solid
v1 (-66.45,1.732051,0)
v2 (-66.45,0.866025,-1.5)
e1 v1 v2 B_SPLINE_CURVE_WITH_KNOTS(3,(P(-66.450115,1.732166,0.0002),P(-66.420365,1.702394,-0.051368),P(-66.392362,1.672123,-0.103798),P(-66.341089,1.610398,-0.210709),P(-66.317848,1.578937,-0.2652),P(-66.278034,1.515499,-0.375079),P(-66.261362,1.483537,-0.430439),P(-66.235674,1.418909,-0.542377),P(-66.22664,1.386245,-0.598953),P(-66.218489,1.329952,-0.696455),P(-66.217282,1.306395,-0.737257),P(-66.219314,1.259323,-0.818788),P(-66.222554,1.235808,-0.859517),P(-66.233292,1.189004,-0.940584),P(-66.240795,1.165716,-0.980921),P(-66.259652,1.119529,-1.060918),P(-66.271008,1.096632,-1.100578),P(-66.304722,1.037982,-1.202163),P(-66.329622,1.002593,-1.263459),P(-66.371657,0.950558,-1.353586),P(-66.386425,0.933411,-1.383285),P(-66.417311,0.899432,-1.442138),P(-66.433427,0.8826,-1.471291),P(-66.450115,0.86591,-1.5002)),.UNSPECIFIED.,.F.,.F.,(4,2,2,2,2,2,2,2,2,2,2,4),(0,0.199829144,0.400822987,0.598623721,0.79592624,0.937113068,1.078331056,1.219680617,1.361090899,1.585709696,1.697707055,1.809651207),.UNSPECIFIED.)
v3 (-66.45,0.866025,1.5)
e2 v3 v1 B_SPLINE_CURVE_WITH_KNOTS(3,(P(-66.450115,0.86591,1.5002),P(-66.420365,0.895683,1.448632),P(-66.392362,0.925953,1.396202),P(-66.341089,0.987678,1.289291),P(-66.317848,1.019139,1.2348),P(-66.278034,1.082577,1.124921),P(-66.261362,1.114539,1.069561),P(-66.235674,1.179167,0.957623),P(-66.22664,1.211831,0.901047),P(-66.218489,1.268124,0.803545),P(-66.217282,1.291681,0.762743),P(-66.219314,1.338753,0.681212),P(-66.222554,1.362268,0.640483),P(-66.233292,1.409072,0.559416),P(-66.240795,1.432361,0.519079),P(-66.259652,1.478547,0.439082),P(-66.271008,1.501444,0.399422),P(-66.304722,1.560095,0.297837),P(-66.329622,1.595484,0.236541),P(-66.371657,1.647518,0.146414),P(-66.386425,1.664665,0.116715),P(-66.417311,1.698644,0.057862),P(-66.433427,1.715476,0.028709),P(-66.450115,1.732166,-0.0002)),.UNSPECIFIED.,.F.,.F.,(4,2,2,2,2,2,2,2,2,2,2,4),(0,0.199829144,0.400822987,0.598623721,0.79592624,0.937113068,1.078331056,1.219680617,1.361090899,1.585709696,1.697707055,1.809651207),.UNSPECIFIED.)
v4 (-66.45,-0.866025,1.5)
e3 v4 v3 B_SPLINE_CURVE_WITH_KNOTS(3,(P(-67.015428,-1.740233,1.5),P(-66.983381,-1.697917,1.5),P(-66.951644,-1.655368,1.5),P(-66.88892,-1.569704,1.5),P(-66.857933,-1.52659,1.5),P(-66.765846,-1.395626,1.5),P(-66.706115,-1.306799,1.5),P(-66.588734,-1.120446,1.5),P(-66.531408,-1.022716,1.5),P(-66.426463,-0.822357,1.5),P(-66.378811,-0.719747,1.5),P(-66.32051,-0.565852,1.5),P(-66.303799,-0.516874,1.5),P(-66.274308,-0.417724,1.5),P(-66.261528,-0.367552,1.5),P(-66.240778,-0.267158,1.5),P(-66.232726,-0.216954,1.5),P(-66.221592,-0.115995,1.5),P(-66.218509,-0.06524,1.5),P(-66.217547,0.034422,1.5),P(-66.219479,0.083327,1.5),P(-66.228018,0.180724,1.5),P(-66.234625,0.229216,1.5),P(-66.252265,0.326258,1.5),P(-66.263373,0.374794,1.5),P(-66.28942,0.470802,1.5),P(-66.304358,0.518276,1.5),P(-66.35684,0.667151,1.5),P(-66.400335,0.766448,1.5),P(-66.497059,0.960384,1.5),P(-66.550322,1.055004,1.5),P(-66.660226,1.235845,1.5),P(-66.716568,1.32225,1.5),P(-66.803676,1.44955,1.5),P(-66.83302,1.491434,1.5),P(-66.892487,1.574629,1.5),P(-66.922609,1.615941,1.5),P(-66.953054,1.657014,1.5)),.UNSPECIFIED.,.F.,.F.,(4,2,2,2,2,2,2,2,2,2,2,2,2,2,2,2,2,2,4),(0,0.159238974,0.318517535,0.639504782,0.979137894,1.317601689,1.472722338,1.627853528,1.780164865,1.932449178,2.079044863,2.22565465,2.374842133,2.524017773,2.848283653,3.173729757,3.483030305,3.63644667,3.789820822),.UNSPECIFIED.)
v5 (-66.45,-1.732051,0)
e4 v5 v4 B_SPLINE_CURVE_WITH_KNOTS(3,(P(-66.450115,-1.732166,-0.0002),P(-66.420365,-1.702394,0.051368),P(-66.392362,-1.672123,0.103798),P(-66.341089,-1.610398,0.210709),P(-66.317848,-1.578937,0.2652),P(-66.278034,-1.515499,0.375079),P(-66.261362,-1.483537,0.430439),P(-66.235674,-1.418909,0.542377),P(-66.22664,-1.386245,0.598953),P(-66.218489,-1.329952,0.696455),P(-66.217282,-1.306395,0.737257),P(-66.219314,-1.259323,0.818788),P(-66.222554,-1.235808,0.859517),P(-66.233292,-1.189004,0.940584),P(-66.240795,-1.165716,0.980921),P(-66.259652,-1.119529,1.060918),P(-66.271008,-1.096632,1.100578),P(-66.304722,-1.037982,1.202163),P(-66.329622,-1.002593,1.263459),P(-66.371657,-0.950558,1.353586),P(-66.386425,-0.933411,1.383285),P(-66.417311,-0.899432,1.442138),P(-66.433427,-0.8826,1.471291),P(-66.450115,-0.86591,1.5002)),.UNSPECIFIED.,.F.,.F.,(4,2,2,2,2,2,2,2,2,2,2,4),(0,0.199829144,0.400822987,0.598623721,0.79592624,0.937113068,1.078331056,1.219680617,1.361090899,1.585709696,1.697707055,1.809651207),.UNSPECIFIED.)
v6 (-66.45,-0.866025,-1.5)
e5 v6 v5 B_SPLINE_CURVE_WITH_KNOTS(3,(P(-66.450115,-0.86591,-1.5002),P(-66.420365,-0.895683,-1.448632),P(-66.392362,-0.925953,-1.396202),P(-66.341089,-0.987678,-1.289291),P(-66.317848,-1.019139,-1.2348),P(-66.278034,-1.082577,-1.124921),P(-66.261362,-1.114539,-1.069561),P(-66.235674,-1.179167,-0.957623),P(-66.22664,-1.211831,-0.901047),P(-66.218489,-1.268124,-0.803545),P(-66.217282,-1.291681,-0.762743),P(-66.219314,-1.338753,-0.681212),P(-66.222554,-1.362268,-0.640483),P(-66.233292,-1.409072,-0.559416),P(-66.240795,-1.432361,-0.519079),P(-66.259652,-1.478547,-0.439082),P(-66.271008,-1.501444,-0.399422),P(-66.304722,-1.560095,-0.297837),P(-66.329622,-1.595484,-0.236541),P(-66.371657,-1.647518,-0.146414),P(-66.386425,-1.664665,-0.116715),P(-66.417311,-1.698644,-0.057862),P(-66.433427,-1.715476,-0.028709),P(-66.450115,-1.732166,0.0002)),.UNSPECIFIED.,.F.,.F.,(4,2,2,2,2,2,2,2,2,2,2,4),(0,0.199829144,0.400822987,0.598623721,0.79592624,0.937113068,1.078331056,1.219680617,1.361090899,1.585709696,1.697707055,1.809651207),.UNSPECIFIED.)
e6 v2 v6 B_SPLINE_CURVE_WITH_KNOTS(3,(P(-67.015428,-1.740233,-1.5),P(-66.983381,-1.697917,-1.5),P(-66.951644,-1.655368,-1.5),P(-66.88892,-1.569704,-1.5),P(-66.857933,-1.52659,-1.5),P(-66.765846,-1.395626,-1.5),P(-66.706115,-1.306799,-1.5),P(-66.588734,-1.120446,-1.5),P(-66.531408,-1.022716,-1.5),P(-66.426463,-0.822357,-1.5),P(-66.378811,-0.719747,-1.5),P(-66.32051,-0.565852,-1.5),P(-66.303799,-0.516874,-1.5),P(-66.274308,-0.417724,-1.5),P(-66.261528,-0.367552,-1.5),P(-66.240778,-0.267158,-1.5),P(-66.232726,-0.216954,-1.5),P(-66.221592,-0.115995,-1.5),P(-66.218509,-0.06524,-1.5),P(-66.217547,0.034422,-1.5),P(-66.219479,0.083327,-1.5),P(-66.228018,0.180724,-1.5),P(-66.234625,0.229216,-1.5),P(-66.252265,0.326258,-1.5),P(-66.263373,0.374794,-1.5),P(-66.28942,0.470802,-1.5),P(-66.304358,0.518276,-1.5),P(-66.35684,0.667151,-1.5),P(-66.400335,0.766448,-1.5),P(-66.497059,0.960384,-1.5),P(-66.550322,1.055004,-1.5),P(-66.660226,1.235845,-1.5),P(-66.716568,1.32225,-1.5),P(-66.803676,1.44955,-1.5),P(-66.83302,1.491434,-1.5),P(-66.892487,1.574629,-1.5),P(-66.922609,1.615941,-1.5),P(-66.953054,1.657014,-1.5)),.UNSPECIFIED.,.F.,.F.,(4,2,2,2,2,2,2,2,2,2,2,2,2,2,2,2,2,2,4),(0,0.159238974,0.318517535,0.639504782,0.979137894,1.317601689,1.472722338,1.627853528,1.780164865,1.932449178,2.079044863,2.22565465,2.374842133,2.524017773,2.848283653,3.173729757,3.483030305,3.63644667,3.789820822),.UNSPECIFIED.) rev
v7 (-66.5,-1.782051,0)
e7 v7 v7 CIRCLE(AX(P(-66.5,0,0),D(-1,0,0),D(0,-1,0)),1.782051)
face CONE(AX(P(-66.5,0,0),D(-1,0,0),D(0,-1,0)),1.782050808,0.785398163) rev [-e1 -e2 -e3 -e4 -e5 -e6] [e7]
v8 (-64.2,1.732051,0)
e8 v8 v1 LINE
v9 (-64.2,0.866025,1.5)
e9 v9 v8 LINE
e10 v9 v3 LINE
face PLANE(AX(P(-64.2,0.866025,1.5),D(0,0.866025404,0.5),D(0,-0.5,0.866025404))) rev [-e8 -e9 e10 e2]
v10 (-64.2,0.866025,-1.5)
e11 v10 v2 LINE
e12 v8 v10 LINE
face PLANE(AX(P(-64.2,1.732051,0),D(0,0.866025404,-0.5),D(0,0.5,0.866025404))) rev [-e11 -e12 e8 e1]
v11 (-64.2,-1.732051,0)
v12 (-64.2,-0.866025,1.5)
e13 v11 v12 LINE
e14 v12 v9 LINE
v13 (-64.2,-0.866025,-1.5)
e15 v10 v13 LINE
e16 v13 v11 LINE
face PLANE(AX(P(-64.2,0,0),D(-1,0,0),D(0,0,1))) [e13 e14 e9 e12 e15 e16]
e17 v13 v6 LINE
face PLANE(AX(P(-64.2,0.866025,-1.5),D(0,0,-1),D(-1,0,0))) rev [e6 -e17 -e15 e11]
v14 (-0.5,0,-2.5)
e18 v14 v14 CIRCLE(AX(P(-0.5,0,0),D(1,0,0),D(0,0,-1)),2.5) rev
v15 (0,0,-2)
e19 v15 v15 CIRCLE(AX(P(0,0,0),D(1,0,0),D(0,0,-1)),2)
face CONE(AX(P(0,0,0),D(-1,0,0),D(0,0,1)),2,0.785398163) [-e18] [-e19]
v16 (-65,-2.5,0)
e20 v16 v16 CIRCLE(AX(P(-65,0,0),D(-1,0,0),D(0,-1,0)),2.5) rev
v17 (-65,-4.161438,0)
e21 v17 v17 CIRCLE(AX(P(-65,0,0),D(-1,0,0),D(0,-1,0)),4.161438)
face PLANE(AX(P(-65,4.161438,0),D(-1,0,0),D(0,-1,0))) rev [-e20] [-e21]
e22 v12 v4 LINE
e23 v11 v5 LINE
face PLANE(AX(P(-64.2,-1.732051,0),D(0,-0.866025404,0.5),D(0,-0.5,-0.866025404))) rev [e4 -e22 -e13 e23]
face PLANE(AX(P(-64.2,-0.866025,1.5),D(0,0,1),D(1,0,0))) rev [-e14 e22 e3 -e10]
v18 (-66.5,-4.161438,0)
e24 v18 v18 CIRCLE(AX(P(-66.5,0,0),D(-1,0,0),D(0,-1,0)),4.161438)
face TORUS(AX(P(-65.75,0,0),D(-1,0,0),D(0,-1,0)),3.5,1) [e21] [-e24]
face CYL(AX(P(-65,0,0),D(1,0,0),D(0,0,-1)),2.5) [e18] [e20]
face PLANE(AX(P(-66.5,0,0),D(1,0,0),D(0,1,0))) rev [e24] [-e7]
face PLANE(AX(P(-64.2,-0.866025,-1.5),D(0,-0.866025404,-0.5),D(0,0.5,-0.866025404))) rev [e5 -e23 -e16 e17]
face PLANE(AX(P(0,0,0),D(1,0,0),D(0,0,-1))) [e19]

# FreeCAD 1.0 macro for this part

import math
import FreeCAD as App
import Part
import Sketcher
from FreeCAD import Vector
Q = App.Units.Quantity


def edges_at(feature, points):
    """Names of the edges that pass closest to the given points."""
    edges = feature.Shape.Edges
    near = lambda p: min(range(len(edges)), key=lambda i: edges[i].distToShape(Part.Vertex(*p))[0])
    return sorted({f"Edge{near(p) + 1}" for p in points})

doc = App.newDocument("Part")
body = doc.addObject("PartDesign::Body", "Body")

sketch1 = body.newObject("Sketcher::SketchObject", "Sketch")
sketch1.AttachmentSupport = (doc.getObject("YZ_Plane"), [""])
sketch1.MapMode = "FlatFace"
sketch1.addGeometry(Part.Circle(Vector(0, 0, 0), Vector(0, 0, 1), 2.5), False)
sketch1.addConstraint(Sketcher.Constraint("Coincident", 0, 3, -1, 1))
sketch1.addConstraint(Sketcher.Constraint("Diameter", 0, Q("5 mm")))
pad1 = body.newObject("PartDesign::Pad", "Pad")
pad1.Profile = sketch1
pad1.Length = 65
pad1.Reversed = True
doc.recompute()

chamfer = body.newObject("PartDesign::Chamfer", "Chamfer")
chamfer.Base = (pad1, edges_at(pad1, [(0, 0, 2.5)]))
chamfer.Size = 0.5

sketch2 = body.newObject("Sketcher::SketchObject", "Sketch001")
sketch2.AttachmentSupport = (doc.getObject("XY_Plane"), [""])
sketch2.MapMode = "FlatFace"
sketch2.addGeometry(Part.LineSegment(Vector(-66.5, 4.2, 0), Vector(-66.5, 0, 0)), False)
sketch2.addGeometry(Part.LineSegment(Vector(-66.5, 0, 0), Vector(-65, 0, 0)), False)
sketch2.addGeometry(Part.LineSegment(Vector(-65, 0, 0), Vector(-65, 4.2, 0)), False)
sketch2.addGeometry(Part.ArcOfCircle(Part.Circle(Vector(-65.8, 3.5, 0), Vector(0, 0, 1), 1), math.radians(41), math.radians(139)), False)
sketch2.addConstraint(Sketcher.Constraint("Coincident", 0, 2, 1, 1))
sketch2.addConstraint(Sketcher.Constraint("Coincident", 1, 2, 2, 1))
sketch2.addConstraint(Sketcher.Constraint("Coincident", 2, 2, 3, 1))
sketch2.addConstraint(Sketcher.Constraint("Coincident", 3, 2, 0, 1))
sketch2.addConstraint(Sketcher.Constraint("Vertical", 0))
sketch2.addConstraint(Sketcher.Constraint("Horizontal", 1))
sketch2.addConstraint(Sketcher.Constraint("Vertical", 2))
sketch2.addConstraint(Sketcher.Constraint("PointOnObject", 0, 2, -1))
sketch2.addConstraint(Sketcher.Constraint("Horizontal", 2, 2, 3, 2))
sketch2.addConstraint(Sketcher.Constraint("Radius", 3, Q("1 mm")))
sketch2.addConstraint(Sketcher.Constraint("DistanceX", 1, 1, 1, 2, Q("1.5 mm")))
sketch2.addConstraint(Sketcher.Constraint("DistanceX", 1, 2, -1, 1, Q("65 mm")))
sketch2.addConstraint(Sketcher.Constraint("DistanceY", -1, 1, 3, 3, Q("3.5 mm")))
revolution = body.newObject("PartDesign::Revolution", "Revolution")
revolution.Profile = sketch2
revolution.ReferenceAxis = (sketch2, ["H_Axis"])
revolution.Angle = 360

sketch3 = body.newObject("Sketcher::SketchObject", "Sketch002")
sketch3.AttachmentSupport = (doc.getObject("YZ_Plane"), [""])
sketch3.MapMode = "FlatFace"
sketch3.AttachmentOffset = App.Placement(Vector(0, 0, -66.5), App.Rotation())
sketch3.addGeometry(Part.LineSegment(Vector(1.7, 0, 0), Vector(0.9, -1.5, 0)), False)
sketch3.addGeometry(Part.LineSegment(Vector(0.9, -1.5, 0), Vector(-0.9, -1.5, 0)), False)
sketch3.addGeometry(Part.LineSegment(Vector(-0.9, -1.5, 0), Vector(-1.7, 0, 0)), False)
sketch3.addGeometry(Part.LineSegment(Vector(-1.7, 0, 0), Vector(-0.9, 1.5, 0)), False)
sketch3.addGeometry(Part.LineSegment(Vector(-0.9, 1.5, 0), Vector(0.9, 1.5, 0)), False)
sketch3.addGeometry(Part.LineSegment(Vector(0.9, 1.5, 0), Vector(1.7, 0, 0)), False)
sketch3.addConstraint(Sketcher.Constraint("Coincident", 0, 2, 1, 1))
sketch3.addConstraint(Sketcher.Constraint("Coincident", 1, 2, 2, 1))
sketch3.addConstraint(Sketcher.Constraint("Coincident", 2, 2, 3, 1))
sketch3.addConstraint(Sketcher.Constraint("Coincident", 3, 2, 4, 1))
sketch3.addConstraint(Sketcher.Constraint("Coincident", 4, 2, 5, 1))
sketch3.addConstraint(Sketcher.Constraint("Coincident", 5, 2, 0, 1))
sketch3.addConstraint(Sketcher.Constraint("Horizontal", 1))
sketch3.addConstraint(Sketcher.Constraint("Horizontal", 4))
sketch3.addConstraint(Sketcher.Constraint("Symmetric", 0, 2, 3, 2, -1, 1))
sketch3.addConstraint(Sketcher.Constraint("Symmetric", 2, 2, 5, 2, -1, 1))
sketch3.addConstraint(Sketcher.Constraint("PointOnObject", 2, 2, -1))
sketch3.addConstraint(Sketcher.Constraint("Parallel", 2, 5))
sketch3.addConstraint(Sketcher.Constraint("Vertical", 1, 2, 3, 2))
sketch3.addConstraint(Sketcher.Constraint("Angle", 0, Q("-120 deg")))
sketch3.addConstraint(Sketcher.Constraint("DistanceY", 1, 2, 3, 2, Q("3 mm")))
sketch3.addConstraint(Sketcher.Constraint("DistanceX", 1, 2, 1, 1, Q("1.732051 mm")))
pocket1 = body.newObject("PartDesign::Pocket", "Pocket")
pocket1.Profile = sketch3
pocket1.Length = 2.3
pocket1.Reversed = True

sketch4 = body.newObject("Sketcher::SketchObject", "Sketch003")
sketch4.AttachmentSupport = (doc.getObject("YZ_Plane"), [""])
sketch4.MapMode = "FlatFace"
sketch4.AttachmentOffset = App.Placement(Vector(0, 0, -66.5), App.Rotation())
sketch4.addGeometry(Part.Circle(Vector(0, 0, 0), Vector(0, 0, 1), 1.8), False)
sketch4.addConstraint(Sketcher.Constraint("Coincident", 0, 3, -1, 1))
sketch4.addConstraint(Sketcher.Constraint("Diameter", 0, Q("3.564102 mm")))
pocket2 = body.newObject("PartDesign::Pocket", "Pocket001")
pocket2.Profile = sketch4
pocket2.Length = 1
pocket2.Reversed = True
pocket2.TaperAngle = -45

doc.recompute()
